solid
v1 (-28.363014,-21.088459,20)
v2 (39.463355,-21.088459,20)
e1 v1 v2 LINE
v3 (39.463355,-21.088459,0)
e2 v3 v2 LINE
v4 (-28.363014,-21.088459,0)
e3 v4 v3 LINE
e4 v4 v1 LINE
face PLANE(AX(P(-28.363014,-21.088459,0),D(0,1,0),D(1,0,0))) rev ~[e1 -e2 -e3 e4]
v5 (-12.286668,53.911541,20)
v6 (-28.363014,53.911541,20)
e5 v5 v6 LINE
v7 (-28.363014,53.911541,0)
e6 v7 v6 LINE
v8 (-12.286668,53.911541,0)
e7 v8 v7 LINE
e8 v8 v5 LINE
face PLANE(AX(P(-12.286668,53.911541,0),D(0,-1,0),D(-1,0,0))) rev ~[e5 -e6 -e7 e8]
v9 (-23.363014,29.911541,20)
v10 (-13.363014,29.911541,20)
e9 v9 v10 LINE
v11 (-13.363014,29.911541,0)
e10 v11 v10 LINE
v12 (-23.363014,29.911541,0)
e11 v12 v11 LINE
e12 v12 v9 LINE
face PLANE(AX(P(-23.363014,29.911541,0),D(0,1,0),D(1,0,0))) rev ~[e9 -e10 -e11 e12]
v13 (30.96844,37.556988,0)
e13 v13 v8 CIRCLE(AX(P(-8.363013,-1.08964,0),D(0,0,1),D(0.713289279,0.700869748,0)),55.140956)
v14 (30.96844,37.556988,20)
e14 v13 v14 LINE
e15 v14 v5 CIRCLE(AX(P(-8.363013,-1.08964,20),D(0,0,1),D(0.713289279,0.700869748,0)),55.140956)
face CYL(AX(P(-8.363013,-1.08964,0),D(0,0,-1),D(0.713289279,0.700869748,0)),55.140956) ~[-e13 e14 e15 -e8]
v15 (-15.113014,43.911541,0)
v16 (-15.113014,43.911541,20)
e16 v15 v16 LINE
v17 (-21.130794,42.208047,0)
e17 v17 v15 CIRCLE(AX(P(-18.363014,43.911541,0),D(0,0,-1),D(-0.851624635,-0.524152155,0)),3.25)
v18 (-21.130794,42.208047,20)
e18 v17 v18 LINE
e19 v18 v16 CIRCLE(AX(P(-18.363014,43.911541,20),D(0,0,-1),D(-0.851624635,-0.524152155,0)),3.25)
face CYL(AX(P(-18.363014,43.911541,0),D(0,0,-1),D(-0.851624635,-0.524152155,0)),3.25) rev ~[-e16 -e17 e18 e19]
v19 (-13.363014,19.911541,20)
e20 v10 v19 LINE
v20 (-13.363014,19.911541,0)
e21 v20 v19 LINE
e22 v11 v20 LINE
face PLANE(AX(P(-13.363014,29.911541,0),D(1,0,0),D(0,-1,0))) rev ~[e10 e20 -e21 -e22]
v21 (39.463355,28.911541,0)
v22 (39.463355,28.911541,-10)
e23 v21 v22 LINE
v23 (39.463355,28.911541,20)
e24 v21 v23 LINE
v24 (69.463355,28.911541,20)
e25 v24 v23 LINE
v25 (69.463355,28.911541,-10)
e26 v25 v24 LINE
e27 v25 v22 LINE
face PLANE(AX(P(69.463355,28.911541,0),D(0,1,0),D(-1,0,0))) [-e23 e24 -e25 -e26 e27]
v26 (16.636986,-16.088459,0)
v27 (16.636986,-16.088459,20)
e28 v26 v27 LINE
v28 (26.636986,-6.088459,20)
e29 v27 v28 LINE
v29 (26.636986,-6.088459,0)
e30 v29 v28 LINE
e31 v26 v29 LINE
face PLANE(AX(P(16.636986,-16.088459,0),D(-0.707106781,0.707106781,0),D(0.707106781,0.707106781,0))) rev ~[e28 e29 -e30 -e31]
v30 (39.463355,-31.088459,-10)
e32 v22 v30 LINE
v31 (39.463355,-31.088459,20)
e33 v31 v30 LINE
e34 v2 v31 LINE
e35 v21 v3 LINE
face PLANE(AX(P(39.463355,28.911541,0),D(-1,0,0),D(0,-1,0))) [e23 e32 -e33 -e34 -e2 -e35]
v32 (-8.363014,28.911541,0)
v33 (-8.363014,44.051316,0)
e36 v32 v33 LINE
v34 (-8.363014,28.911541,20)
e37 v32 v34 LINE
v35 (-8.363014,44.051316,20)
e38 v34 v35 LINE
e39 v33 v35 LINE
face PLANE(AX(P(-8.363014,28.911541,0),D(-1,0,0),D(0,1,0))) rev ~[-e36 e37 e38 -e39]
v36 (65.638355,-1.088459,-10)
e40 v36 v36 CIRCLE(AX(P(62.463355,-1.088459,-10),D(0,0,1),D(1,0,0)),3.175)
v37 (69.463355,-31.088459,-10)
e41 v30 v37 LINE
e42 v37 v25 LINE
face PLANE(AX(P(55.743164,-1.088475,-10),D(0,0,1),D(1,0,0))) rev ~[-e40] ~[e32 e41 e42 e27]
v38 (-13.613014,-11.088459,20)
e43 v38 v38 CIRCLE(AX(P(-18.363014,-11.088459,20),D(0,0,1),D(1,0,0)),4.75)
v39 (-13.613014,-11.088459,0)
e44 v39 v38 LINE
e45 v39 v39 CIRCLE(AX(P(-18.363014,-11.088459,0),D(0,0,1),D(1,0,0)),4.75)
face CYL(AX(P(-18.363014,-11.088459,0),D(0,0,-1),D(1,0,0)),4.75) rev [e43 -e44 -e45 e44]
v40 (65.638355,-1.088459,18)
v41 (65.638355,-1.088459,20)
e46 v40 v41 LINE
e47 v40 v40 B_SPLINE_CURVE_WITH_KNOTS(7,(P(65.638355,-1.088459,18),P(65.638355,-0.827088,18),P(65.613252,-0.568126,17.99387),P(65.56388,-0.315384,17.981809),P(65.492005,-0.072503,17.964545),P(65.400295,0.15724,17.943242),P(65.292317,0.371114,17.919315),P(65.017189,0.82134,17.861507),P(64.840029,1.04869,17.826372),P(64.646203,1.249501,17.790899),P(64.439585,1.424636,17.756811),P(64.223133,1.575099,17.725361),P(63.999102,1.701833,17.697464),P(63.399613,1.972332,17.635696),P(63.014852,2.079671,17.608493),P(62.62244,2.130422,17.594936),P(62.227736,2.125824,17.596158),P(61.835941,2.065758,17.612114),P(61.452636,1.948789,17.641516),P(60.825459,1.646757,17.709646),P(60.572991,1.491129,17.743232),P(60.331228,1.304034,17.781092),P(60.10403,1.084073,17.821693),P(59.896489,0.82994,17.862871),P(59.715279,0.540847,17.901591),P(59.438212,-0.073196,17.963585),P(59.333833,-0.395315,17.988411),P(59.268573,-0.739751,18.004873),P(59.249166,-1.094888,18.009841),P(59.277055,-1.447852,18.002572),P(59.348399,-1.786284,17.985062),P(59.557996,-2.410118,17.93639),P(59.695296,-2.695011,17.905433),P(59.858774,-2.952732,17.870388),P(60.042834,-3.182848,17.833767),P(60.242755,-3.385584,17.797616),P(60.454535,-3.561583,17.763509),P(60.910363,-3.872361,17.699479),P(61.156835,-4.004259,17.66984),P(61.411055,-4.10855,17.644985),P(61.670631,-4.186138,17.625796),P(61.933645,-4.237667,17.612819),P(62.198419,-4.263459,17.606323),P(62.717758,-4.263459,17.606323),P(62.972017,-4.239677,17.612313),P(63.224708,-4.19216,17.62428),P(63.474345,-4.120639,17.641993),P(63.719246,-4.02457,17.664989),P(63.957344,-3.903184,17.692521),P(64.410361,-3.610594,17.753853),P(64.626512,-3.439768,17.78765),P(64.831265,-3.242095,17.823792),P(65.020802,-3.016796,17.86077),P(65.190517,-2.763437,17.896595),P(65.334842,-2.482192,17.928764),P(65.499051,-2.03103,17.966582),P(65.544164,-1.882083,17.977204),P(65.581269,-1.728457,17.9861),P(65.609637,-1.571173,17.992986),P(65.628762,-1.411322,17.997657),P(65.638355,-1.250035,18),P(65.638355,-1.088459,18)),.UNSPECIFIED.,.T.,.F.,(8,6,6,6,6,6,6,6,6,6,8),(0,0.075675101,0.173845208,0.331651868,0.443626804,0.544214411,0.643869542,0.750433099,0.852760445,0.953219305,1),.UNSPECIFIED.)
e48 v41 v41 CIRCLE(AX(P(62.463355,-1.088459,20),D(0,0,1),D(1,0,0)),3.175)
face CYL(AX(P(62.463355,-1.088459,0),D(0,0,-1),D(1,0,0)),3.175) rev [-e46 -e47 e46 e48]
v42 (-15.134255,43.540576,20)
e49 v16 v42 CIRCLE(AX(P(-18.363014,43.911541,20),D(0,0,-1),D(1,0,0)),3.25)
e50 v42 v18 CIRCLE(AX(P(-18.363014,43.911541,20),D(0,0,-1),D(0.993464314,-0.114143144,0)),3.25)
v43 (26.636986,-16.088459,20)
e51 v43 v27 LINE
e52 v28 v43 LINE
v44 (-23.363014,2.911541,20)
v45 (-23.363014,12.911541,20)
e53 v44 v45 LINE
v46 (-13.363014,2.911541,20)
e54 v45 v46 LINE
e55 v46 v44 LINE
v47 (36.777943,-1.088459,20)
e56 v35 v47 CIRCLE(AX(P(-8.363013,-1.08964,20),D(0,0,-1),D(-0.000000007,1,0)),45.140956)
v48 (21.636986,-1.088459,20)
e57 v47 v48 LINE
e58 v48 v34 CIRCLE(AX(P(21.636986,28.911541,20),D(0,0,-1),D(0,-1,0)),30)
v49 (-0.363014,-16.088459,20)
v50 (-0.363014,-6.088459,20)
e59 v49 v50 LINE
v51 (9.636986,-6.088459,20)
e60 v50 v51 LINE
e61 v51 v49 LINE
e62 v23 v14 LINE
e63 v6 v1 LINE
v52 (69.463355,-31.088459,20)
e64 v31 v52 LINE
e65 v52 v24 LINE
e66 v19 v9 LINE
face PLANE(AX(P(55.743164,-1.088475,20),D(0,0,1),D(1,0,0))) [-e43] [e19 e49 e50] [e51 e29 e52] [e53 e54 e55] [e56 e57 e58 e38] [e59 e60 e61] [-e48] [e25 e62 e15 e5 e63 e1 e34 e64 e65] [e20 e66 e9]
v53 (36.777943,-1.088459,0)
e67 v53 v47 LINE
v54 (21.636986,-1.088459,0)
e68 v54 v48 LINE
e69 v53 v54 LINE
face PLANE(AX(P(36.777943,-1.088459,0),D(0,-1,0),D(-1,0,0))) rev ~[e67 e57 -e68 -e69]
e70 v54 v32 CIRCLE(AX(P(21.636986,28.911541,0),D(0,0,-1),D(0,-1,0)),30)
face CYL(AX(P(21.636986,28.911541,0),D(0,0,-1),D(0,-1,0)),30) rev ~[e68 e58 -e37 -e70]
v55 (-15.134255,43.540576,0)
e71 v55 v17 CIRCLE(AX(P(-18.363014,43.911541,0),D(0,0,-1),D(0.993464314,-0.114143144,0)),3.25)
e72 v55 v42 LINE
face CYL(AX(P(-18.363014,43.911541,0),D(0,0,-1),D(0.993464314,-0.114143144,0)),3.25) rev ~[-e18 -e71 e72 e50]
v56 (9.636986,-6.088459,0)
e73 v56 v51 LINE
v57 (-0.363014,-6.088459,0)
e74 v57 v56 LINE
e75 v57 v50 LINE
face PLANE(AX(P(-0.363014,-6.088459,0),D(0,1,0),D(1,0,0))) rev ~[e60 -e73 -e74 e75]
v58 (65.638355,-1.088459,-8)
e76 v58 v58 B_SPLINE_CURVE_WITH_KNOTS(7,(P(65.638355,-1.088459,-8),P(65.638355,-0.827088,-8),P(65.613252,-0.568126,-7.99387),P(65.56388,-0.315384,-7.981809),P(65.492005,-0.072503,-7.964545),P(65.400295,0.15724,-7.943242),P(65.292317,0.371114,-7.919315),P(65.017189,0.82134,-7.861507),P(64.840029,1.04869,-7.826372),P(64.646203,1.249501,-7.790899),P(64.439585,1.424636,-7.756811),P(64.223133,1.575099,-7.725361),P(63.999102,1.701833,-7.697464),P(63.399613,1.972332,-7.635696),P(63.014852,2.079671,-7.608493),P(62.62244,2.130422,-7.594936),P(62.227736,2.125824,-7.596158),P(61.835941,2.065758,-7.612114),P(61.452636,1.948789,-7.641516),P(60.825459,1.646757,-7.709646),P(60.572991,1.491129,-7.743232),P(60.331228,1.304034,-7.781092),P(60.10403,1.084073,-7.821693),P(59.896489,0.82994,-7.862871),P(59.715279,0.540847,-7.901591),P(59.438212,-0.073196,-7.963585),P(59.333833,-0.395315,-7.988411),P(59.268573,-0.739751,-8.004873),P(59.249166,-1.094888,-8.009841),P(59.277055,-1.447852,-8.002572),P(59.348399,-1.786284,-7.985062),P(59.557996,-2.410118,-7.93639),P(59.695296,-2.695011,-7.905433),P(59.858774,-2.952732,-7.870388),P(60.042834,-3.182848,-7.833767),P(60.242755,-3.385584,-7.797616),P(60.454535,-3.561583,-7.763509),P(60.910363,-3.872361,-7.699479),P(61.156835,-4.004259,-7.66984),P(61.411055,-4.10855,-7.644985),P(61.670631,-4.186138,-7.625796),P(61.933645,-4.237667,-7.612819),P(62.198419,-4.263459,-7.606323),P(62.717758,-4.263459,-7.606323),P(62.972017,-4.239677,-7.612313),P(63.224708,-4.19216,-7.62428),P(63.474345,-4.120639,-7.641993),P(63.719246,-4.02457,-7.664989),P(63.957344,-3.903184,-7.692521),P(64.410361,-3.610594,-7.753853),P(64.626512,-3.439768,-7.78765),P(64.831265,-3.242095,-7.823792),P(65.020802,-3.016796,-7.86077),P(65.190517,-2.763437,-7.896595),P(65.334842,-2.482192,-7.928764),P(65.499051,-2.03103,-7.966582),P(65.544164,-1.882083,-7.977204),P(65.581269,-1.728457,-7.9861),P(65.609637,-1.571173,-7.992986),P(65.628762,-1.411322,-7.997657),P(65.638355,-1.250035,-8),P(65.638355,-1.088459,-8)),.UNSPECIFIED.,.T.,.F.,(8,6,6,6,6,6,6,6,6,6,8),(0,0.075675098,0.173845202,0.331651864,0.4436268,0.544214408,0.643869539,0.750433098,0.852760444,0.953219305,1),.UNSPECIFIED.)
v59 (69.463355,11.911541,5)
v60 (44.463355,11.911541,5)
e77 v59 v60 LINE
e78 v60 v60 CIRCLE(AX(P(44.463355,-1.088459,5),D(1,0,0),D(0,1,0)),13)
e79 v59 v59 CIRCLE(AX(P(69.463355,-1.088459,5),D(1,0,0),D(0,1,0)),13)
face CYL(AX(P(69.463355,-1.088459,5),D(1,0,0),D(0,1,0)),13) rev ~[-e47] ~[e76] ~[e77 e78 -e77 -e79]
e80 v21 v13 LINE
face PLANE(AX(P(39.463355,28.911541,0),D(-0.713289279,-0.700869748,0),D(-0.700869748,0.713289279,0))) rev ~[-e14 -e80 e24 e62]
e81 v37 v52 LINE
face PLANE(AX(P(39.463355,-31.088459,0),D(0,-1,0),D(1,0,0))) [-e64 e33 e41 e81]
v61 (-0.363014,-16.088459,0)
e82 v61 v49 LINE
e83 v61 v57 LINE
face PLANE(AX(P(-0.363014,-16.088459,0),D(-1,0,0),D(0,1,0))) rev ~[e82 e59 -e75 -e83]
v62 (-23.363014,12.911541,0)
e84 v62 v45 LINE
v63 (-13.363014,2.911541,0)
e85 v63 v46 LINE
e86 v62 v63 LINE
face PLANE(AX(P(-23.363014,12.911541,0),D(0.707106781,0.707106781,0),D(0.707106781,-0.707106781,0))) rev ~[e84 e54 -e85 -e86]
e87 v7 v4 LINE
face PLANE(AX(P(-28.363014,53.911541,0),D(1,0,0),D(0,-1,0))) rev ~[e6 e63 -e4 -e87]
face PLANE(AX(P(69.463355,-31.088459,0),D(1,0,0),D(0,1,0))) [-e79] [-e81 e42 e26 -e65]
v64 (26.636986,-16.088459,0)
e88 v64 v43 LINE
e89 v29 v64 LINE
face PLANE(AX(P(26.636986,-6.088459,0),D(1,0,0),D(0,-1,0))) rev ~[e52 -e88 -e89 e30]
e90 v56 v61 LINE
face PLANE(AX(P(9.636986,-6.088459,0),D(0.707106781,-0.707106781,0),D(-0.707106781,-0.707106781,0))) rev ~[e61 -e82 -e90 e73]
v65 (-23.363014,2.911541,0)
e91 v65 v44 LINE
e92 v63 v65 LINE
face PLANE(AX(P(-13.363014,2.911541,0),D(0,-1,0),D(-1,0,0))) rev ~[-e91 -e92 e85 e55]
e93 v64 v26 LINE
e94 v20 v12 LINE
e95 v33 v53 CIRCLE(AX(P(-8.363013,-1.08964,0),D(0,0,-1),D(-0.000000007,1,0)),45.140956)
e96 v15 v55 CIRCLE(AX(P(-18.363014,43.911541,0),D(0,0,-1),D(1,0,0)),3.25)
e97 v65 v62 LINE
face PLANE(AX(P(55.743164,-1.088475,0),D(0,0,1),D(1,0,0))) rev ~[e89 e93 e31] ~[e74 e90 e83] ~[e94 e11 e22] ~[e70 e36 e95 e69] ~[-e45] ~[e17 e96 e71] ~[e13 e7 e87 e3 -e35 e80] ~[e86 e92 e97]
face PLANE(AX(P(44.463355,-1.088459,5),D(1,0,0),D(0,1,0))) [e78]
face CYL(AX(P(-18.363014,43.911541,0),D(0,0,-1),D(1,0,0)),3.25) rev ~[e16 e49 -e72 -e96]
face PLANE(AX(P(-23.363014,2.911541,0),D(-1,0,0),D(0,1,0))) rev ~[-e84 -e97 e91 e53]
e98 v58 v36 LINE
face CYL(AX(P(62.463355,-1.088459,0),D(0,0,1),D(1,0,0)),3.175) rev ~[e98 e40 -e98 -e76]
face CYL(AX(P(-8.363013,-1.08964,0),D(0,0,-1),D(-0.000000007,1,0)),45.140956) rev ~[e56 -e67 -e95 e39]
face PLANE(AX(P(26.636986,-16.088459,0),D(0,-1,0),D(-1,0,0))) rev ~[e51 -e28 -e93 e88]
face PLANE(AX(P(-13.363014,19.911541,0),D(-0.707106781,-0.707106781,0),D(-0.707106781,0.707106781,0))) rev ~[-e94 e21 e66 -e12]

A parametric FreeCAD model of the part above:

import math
import FreeCAD as App
import Part
import Sketcher
Q = App.Units.Quantity

doc = App.newDocument("Part")
params = doc.addObject("Spreadsheet::Sheet", "Params")
for row, (alias, value) in enumerate([
    ("sketch1_radius", "30 mm"),
    ("sketch1_diameter", "9.5 mm"),
    ("sketch1_diameter2", "6.35 mm"),
    ("sketch1_width", "30 mm"),
    ("sketch1_width2", "10 mm"),
    ("pad1_length", "20 mm"),
    ("sketch2_diameter", "6.35 mm"),
    ("sketch2_width", "30 mm"),
    ("sketch2_height", "60 mm"),
    ("pad2_length", "10 mm"),
    ("sketch3_diameter", "26 mm"),
    ("pocket1_length", "25 mm"),
], start=1):
    params.set(f"A{row}", alias)
    params.set(f"B{row}", "=" + value)
    params.setAlias(f"B{row}", alias)

body = doc.addObject("PartDesign::Body", "Body")

# Sketch on XY plane
sketch1 = body.newObject("Sketcher::SketchObject", "Sketch")
sketch1.AttachmentSupport = (doc.getObject("XY_Plane"), [""])
sketch1.MapMode = "FlatFace"
sketch1.addGeometry([
    Part.ArcOfCircle(Part.Circle(App.Vector(-8.36, -1.09, 0), App.Vector(0, 0, 1), 55.14), math.radians(44), math.radians(94)),  # 0
    Part.LineSegment(App.Vector(-12.29, 53.91, 0), App.Vector(-28.36, 53.91, 0)),  # 1
    Part.LineSegment(App.Vector(-28.36, 53.91, 0), App.Vector(-28.36, -21.09, 0)),  # 2
    Part.LineSegment(App.Vector(-28.36, -21.09, 0), App.Vector(39.46, -21.09, 0)),  # 3
    Part.LineSegment(App.Vector(39.46, -21.09, 0), App.Vector(39.46, -31.09, 0)),  # 4
    Part.LineSegment(App.Vector(39.46, -31.09, 0), App.Vector(69.46, -31.09, 0)),  # 5
    Part.LineSegment(App.Vector(69.46, -31.09, 0), App.Vector(69.46, 28.91, 0)),  # 6
    Part.LineSegment(App.Vector(69.46, 28.91, 0), App.Vector(39.46, 28.91, 0)),  # 7
    Part.LineSegment(App.Vector(39.46, 28.91, 0), App.Vector(30.97, 37.56, 0)),  # 8
    Part.ArcOfCircle(Part.Circle(App.Vector(-18.36, 43.91, 0), App.Vector(0, 0, 1), 3.25), math.radians(-148), math.radians(-7)),  # 9
    Part.ArcOfCircle(Part.Circle(App.Vector(-18.36, 43.91, 0), App.Vector(0, 0, 1), 3.25), math.radians(0), math.radians(212)),  # 10
    Part.ArcOfCircle(Part.Circle(App.Vector(-18.36, 43.91, 0), App.Vector(0, 0, 1), 3.25), math.radians(-6.55), math.radians(0)),  # 11
    Part.Circle(App.Vector(-18.36, -11.09, 0), App.Vector(0, 0, 1), 4.75),  # 12
    Part.LineSegment(App.Vector(-0.36, -16.09, 0), App.Vector(-0.36, -6.09, 0)),  # 13
    Part.LineSegment(App.Vector(-0.36, -6.09, 0), App.Vector(9.64, -6.09, 0)),  # 14
    Part.LineSegment(App.Vector(9.64, -6.09, 0), App.Vector(-0.36, -16.09, 0)),  # 15
    Part.LineSegment(App.Vector(-13.36, 2.91, 0), App.Vector(-23.36, 2.91, 0)),  # 16
    Part.LineSegment(App.Vector(-23.36, 2.91, 0), App.Vector(-23.36, 12.91, 0)),  # 17
    Part.LineSegment(App.Vector(-23.36, 12.91, 0), App.Vector(-13.36, 2.91, 0)),  # 18
    Part.LineSegment(App.Vector(26.64, -6.09, 0), App.Vector(26.64, -16.09, 0)),  # 19
    Part.LineSegment(App.Vector(26.64, -16.09, 0), App.Vector(16.64, -16.09, 0)),  # 20
    Part.LineSegment(App.Vector(16.64, -16.09, 0), App.Vector(26.64, -6.09, 0)),  # 21
    Part.Circle(App.Vector(62.46, -1.09, 0), App.Vector(0, 0, 1), 3.17),  # 22
    Part.LineSegment(App.Vector(-13.36, 29.91, 0), App.Vector(-13.36, 19.91, 0)),  # 23
    Part.LineSegment(App.Vector(-13.36, 19.91, 0), App.Vector(-23.36, 29.91, 0)),  # 24
    Part.LineSegment(App.Vector(-23.36, 29.91, 0), App.Vector(-13.36, 29.91, 0)),  # 25
    Part.LineSegment(App.Vector(-8.36, 28.91, 0), App.Vector(-8.36, 44.05, 0)),  # 26
    Part.ArcOfCircle(Part.Circle(App.Vector(-8.36, -1.09, 0), App.Vector(0, 0, 1), 45.14), math.radians(0), math.radians(90)),  # 27
    Part.LineSegment(App.Vector(36.78, -1.09, 0), App.Vector(21.64, -1.09, 0)),  # 28
    Part.ArcOfCircle(Part.Circle(App.Vector(21.64, 28.91, 0), App.Vector(0, 0, 1), 30), math.radians(180), math.radians(270)),  # 29
], False)
sketch1.addConstraint([
    Sketcher.Constraint("Coincident", 0, 2, 1, 1),
    Sketcher.Constraint("Coincident", 1, 2, 2, 1),
    Sketcher.Constraint("Coincident", 2, 2, 3, 1),
    Sketcher.Constraint("Coincident", 3, 2, 4, 1),
    Sketcher.Constraint("Coincident", 4, 2, 5, 1),
    Sketcher.Constraint("Coincident", 5, 2, 6, 1),
    Sketcher.Constraint("Coincident", 6, 2, 7, 1),
    Sketcher.Constraint("Coincident", 7, 2, 8, 1),
    Sketcher.Constraint("Tangent", 8, 2, 0, 1),
    Sketcher.Constraint("Tangent", 9, 1, 10, 2),
    Sketcher.Constraint("Tangent", 10, 1, 11, 2),
    Sketcher.Constraint("Tangent", 11, 1, 9, 2),
    Sketcher.Constraint("Coincident", 13, 2, 14, 1),
    Sketcher.Constraint("Coincident", 14, 2, 15, 1),
    Sketcher.Constraint("Coincident", 15, 2, 13, 1),
    Sketcher.Constraint("Coincident", 16, 2, 17, 1),
    Sketcher.Constraint("Coincident", 17, 2, 18, 1),
    Sketcher.Constraint("Coincident", 18, 2, 16, 1),
    Sketcher.Constraint("Coincident", 19, 2, 20, 1),
    Sketcher.Constraint("Coincident", 20, 2, 21, 1),
    Sketcher.Constraint("Coincident", 21, 2, 19, 1),
    Sketcher.Constraint("Coincident", 23, 2, 24, 1),
    Sketcher.Constraint("Coincident", 24, 2, 25, 1),
    Sketcher.Constraint("Coincident", 25, 2, 23, 1),
    Sketcher.Constraint("Coincident", 26, 2, 27, 2),
    Sketcher.Constraint("Coincident", 27, 1, 28, 1),
    Sketcher.Constraint("Tangent", 28, 2, 29, 2),
    Sketcher.Constraint("Tangent", 29, 1, 26, 1),
    Sketcher.Constraint("Horizontal", 1),
    Sketcher.Constraint("Vertical", 2),
    Sketcher.Constraint("Horizontal", 3),
    Sketcher.Constraint("Vertical", 4),
    Sketcher.Constraint("Horizontal", 5),
    Sketcher.Constraint("Vertical", 6),
    Sketcher.Constraint("Horizontal", 7),
    Sketcher.Constraint("Vertical", 13),
    Sketcher.Constraint("Horizontal", 14),
    Sketcher.Constraint("Horizontal", 16),
    Sketcher.Constraint("Vertical", 17),
    Sketcher.Constraint("Vertical", 19),
    Sketcher.Constraint("Horizontal", 20),
    Sketcher.Constraint("Vertical", 23),
    Sketcher.Constraint("Horizontal", 25),
    Sketcher.Constraint("Vertical", 26),
    Sketcher.Constraint("Horizontal", 28),
    Sketcher.Constraint("Coincident", 27, 3, 0, 3),
    Sketcher.Constraint("Perpendicular", 15, 18),
    Sketcher.Constraint("Perpendicular", 18, 21),
    Sketcher.Constraint("Perpendicular", 21, 24),
    Sketcher.Constraint("Horizontal", 29, 3, 6, 2),
    Sketcher.Constraint("Horizontal", 11, 3, 10, 1),
    Sketcher.Constraint("Horizontal", 15, 2, 19, 2),
    Sketcher.Constraint("Horizontal", 14, 2, 21, 2),
    Sketcher.Constraint("Horizontal", 22, 3, 27, 1),
    Sketcher.Constraint("Vertical", 11, 3, 12, 3),
    Sketcher.Constraint("Vertical", 4, 2, 7, 2),
    Sketcher.Constraint("Vertical", 18, 2, 23, 2),
    Sketcher.Constraint("Vertical", 17, 2, 24, 2),
    Sketcher.Constraint("Vertical", 27, 3, 26, 2),
    Sketcher.Constraint("Equal", 14, 16),
    Sketcher.Constraint("Equal", 25, 4),
    Sketcher.Constraint("Equal", 4, 13),
    Sketcher.Constraint("Radius", 29, Q("30 mm")),
    Sketcher.Constraint("Diameter", 12, Q("9.5 mm")),
    Sketcher.Constraint("Diameter", 22, Q("6.35 mm")),
    Sketcher.Constraint("DistanceX", 5, 1, 5, 2, Q("30 mm")),
    Sketcher.Constraint("DistanceX", 14, 1, 14, 2, Q("10 mm")),
    Sketcher.Constraint("DistanceY", 2, 2, 2, 1, Q("75 mm")),
    Sketcher.Constraint("DistanceY", 6, 1, 6, 2, Q("60 mm")),
    Sketcher.Constraint("Radius", 9, Q("3.25 mm")),
    Sketcher.Constraint("DistanceX", 9, 3, 0, 3, Q("10 mm")),
    Sketcher.Constraint("DistanceY", 12, 3, 9, 3, Q("55 mm")),
    Sketcher.Constraint("DistanceY", 12, 3, 22, 3, Q("10 mm")),
    Sketcher.Constraint("DistanceX", 1, 2, 9, 3, Q("10 mm")),
    Sketcher.Constraint("DistanceX", 3, 2, 22, 3, Q("23 mm")),
    Sketcher.Constraint("DistanceX", 0, 3, 13, 2, Q("8 mm")),
    Sketcher.Constraint("DistanceY", 12, 3, 13, 2, Q("5 mm")),
    Sketcher.Constraint("DistanceX", 16, 2, 12, 3, Q("5 mm")),
    Sketcher.Constraint("DistanceY", 12, 3, 16, 2, Q("14 mm")),
    Sketcher.Constraint("DistanceX", 14, 2, 19, 2, Q("17 mm")),
    Sketcher.Constraint("DistanceY", 17, 2, 23, 2, Q("7 mm")),
    Sketcher.Constraint("Radius", 0, Q("55.140956 mm")),
    Sketcher.Constraint("Radius", 27, Q("45.140956 mm")),
    Sketcher.Constraint("DistanceX", 3, 1, 3, 2, Q("67.826368 mm")),
    Sketcher.Constraint("DistanceX", 1, 2, 1, 1, Q("16.076345 mm")),
    Sketcher.Constraint("DistanceY", 0, 3, -1, 1, Q("1.08964 mm")),
    Sketcher.Constraint("DistanceX", 0, 2, -1, 1, Q("12.286668 mm")),
    Sketcher.Constraint("DistanceX", 9, 1, 9, 3, Q("2.76778 mm")),
    Sketcher.Constraint("DistanceX", 11, 1, 10, 1, Q("0.021241 mm")),
])
sketch1.setExpression("Constraints[62]", "Params.sketch1_radius")
sketch1.setExpression("Constraints[63]", "Params.sketch1_diameter")
sketch1.setExpression("Constraints[64]", "Params.sketch1_diameter2")
sketch1.setExpression("Constraints[65]", "Params.sketch1_width")
sketch1.setExpression("Constraints[66]", "Params.sketch1_width2")
pad1 = body.newObject("PartDesign::Pad", "Pad")
pad1.Profile = sketch1
pad1.setExpression("Length", "Params.pad1_length")

# Sketch on XY plane
sketch2 = body.newObject("Sketcher::SketchObject", "Sketch001")
sketch2.AttachmentSupport = (doc.getObject("XY_Plane"), [""])
sketch2.MapMode = "FlatFace"
sketch2.addGeometry([
    Part.LineSegment(App.Vector(39.5, -31.1, 0), App.Vector(69.5, -31.1, 0)),  # 0
    Part.LineSegment(App.Vector(69.5, -31.1, 0), App.Vector(69.5, 28.9, 0)),  # 1
    Part.LineSegment(App.Vector(69.5, 28.9, 0), App.Vector(39.5, 28.9, 0)),  # 2
    Part.LineSegment(App.Vector(39.5, 28.9, 0), App.Vector(39.5, -31.1, 0)),  # 3
    Part.Circle(App.Vector(62.5, -1.1, 0), App.Vector(0, 0, 1), 3.2),  # 4
], False)
sketch2.addConstraint([
    Sketcher.Constraint("Coincident", 0, 2, 1, 1),
    Sketcher.Constraint("Coincident", 1, 2, 2, 1),
    Sketcher.Constraint("Coincident", 2, 2, 3, 1),
    Sketcher.Constraint("Coincident", 3, 2, 0, 1),
    Sketcher.Constraint("Horizontal", 0),
    Sketcher.Constraint("Vertical", 1),
    Sketcher.Constraint("Horizontal", 2),
    Sketcher.Constraint("Vertical", 3),
    Sketcher.Constraint("Diameter", 4, Q("6.35 mm")),
    Sketcher.Constraint("DistanceX", 0, 1, 0, 2, Q("30 mm")),
    Sketcher.Constraint("DistanceY", 1, 1, 1, 2, Q("60 mm")),
    Sketcher.Constraint("DistanceX", 4, 3, 0, 2, Q("7 mm")),
    Sketcher.Constraint("DistanceY", 0, 2, 4, 3, Q("30 mm")),
    Sketcher.Constraint("DistanceY", 4, 3, -1, 1, Q("1.088459 mm")),
    Sketcher.Constraint("DistanceX", -1, 1, 4, 3, Q("62.463355 mm")),
])
sketch2.setExpression("Constraints[8]", "Params.sketch2_diameter")
sketch2.setExpression("Constraints[9]", "Params.sketch2_width")
sketch2.setExpression("Constraints[10]", "Params.sketch2_height")
pad2 = body.newObject("PartDesign::Pad", "Pad001")
pad2.Profile = sketch2
pad2.setExpression("Length", "Params.pad2_length")
pad2.Reversed = True

# Sketch on YZ plane
sketch3 = body.newObject("Sketcher::SketchObject", "Sketch002")
sketch3.AttachmentSupport = (doc.getObject("YZ_Plane"), [""])
sketch3.MapMode = "FlatFace"
sketch3.AttachmentOffset = App.Placement(App.Vector(0, 0, 69.463355), App.Rotation())
sketch3.addGeometry(Part.Circle(App.Vector(-1, 5, 0), App.Vector(0, 0, 1), 13), False)
sketch3.addConstraint([
    Sketcher.Constraint("Diameter", 0, Q("26 mm")),
    Sketcher.Constraint("DistanceY", -1, 1, 0, 3, Q("5 mm")),
    Sketcher.Constraint("DistanceX", 0, 3, -1, 1, Q("1.088459 mm")),
])
sketch3.setExpression("Constraints[0]", "Params.sketch3_diameter")
pocket1 = body.newObject("PartDesign::Pocket", "Pocket")
pocket1.Profile = sketch3
pocket1.setExpression("Length", "Params.pocket1_length")

doc.recompute()
